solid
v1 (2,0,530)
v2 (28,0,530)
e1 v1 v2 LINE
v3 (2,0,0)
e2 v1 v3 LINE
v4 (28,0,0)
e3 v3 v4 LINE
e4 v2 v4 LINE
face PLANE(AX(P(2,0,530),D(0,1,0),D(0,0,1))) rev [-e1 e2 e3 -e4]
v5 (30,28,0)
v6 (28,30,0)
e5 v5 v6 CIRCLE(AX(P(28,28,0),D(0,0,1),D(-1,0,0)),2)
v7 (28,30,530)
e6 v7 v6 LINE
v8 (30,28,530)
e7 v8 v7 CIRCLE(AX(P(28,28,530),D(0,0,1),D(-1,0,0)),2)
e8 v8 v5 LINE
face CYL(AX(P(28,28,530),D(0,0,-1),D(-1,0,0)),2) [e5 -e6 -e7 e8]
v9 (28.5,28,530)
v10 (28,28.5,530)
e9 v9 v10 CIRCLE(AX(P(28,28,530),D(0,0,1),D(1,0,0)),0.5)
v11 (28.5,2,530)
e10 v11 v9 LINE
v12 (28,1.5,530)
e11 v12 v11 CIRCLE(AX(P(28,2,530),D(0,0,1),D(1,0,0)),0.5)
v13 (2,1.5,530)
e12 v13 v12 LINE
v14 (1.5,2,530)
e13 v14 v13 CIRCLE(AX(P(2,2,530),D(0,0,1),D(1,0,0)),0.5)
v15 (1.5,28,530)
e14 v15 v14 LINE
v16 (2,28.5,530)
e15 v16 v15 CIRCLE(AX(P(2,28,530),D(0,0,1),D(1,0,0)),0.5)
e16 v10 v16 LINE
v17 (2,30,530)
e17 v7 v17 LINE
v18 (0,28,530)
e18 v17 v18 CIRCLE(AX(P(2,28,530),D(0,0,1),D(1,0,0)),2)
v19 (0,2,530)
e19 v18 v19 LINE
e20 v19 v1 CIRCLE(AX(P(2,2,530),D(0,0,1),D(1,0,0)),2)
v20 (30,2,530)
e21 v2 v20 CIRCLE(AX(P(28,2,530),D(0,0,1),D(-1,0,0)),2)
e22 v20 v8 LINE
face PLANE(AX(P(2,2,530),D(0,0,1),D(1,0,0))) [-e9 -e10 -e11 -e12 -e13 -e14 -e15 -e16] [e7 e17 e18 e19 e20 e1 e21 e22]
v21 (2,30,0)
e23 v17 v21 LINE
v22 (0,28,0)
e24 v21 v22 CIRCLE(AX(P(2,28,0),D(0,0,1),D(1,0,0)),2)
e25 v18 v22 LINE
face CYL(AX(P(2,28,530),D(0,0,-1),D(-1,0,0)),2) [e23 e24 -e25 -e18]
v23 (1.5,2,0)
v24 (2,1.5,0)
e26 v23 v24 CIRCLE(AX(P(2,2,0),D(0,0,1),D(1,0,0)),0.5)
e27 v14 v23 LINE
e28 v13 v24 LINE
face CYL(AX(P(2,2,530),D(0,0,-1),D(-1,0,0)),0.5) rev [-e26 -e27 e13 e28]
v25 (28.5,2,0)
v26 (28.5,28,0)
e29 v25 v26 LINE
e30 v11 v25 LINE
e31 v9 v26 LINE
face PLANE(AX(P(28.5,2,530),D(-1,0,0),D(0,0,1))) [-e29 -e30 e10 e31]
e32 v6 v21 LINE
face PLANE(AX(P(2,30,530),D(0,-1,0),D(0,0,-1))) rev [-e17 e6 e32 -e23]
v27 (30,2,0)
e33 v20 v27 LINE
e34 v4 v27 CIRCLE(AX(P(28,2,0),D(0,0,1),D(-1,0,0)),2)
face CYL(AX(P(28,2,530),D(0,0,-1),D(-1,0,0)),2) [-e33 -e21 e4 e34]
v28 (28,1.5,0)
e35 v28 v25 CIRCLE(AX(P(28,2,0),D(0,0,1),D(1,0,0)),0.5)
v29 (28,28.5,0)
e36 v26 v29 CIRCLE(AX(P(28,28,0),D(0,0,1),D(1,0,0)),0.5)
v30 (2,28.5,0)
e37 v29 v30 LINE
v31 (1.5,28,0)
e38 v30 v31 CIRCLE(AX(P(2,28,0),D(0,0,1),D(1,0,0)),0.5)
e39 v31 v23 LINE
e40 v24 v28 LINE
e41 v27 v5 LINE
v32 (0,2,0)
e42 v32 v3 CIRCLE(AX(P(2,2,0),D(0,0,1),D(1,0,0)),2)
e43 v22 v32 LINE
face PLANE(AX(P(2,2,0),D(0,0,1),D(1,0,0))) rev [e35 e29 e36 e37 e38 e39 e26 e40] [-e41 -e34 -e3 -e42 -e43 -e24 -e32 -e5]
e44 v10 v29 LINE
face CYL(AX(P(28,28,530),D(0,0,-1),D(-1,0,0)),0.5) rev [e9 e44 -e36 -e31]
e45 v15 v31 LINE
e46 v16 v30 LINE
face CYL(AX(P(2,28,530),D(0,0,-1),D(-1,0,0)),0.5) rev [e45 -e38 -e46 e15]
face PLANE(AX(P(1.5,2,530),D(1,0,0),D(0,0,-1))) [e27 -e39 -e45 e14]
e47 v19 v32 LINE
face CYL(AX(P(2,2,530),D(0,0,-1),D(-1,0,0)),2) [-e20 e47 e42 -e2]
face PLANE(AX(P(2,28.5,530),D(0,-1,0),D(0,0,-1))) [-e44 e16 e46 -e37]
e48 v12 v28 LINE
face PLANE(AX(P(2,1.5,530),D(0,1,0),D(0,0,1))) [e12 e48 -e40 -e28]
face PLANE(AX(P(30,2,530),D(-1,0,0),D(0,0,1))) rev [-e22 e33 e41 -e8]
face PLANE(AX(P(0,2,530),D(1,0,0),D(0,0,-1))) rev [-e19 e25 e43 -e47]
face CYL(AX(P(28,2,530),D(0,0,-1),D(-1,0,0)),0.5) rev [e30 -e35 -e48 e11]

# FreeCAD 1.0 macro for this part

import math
import FreeCAD as App
import Part
import Sketcher

V = App.Vector
Q = App.Units.Quantity

doc = App.newDocument("Part")
body = doc.addObject("PartDesign::Body", "Body")

sketch1 = body.newObject("Sketcher::SketchObject", "Sketch")
sketch1.AttachmentSupport = (doc.getObject("XY_Plane"), [""])
sketch1.MapMode = "FlatFace"
sketch1.addGeometry([
    Part.LineSegment(V(0, 28, 0), V(0, 2, 0)),
    Part.ArcOfCircle(Part.Circle(V(2, 2, 0), V(0, 0, 1), 2), math.radians(-180), math.radians(-90)),
    Part.LineSegment(V(2, 0, 0), V(28, 0, 0)),
    Part.ArcOfCircle(Part.Circle(V(28, 2, 0), V(0, 0, 1), 2), math.radians(-90), math.radians(0)),
    Part.LineSegment(V(30, 2, 0), V(30, 28, 0)),
    Part.ArcOfCircle(Part.Circle(V(28, 28, 0), V(0, 0, 1), 2), math.radians(0), math.radians(90)),
    Part.LineSegment(V(28, 30, 0), V(2, 30, 0)),
    Part.ArcOfCircle(Part.Circle(V(2, 28, 0), V(0, 0, 1), 2), math.radians(90), math.radians(180)),
    Part.LineSegment(V(1.5, 2, 0), V(1.5, 28, 0)),
    Part.ArcOfCircle(Part.Circle(V(2, 28, 0), V(0, 0, 1), 0.5), math.radians(90), math.radians(180)),
    Part.LineSegment(V(2, 28.5, 0), V(28, 28.5, 0)),
    Part.ArcOfCircle(Part.Circle(V(28, 28, 0), V(0, 0, 1), 0.5), math.radians(0), math.radians(90)),
    Part.LineSegment(V(28.5, 28, 0), V(28.5, 2, 0)),
    Part.ArcOfCircle(Part.Circle(V(28, 2, 0), V(0, 0, 1), 0.5), math.radians(-90), math.radians(0)),
    Part.LineSegment(V(28, 1.5, 0), V(2, 1.5, 0)),
    Part.ArcOfCircle(Part.Circle(V(2, 2, 0), V(0, 0, 1), 0.5), math.radians(180), math.radians(270)),
], False)
sketch1.addConstraint([
    Sketcher.Constraint("Tangent", 0, 2, 1, 1),
    Sketcher.Constraint("Tangent", 1, 2, 2, 1),
    Sketcher.Constraint("Tangent", 2, 2, 3, 1),
    Sketcher.Constraint("Tangent", 3, 2, 4, 1),
    Sketcher.Constraint("Tangent", 4, 2, 5, 1),
    Sketcher.Constraint("Tangent", 5, 2, 6, 1),
    Sketcher.Constraint("Tangent", 6, 2, 7, 1),
    Sketcher.Constraint("Tangent", 7, 2, 0, 1),
    Sketcher.Constraint("Tangent", 8, 2, 9, 2),
    Sketcher.Constraint("Tangent", 9, 1, 10, 1),
    Sketcher.Constraint("Tangent", 10, 2, 11, 2),
    Sketcher.Constraint("Tangent", 11, 1, 12, 1),
    Sketcher.Constraint("Tangent", 12, 2, 13, 2),
    Sketcher.Constraint("Tangent", 13, 1, 14, 1),
    Sketcher.Constraint("Tangent", 14, 2, 15, 2),
    Sketcher.Constraint("Tangent", 15, 1, 8, 1),
    Sketcher.Constraint("Vertical", 0),
    Sketcher.Constraint("Horizontal", 2),
    Sketcher.Constraint("Vertical", 4),
    Sketcher.Constraint("Horizontal", 6),
    Sketcher.Constraint("Vertical", 8),
    Sketcher.Constraint("Horizontal", 10),
    Sketcher.Constraint("Vertical", 12),
    Sketcher.Constraint("Horizontal", 14),
    Sketcher.Constraint("Coincident", 9, 3, 7, 3),
    Sketcher.Constraint("Coincident", 11, 3, 5, 3),
    Sketcher.Constraint("Coincident", 13, 3, 3, 3),
    Sketcher.Constraint("Equal", 1, 3),
    Sketcher.Constraint("Equal", 3, 5),
    Sketcher.Constraint("Equal", 5, 7),
    Sketcher.Constraint("Equal", 13, 15),
    Sketcher.Constraint("PointOnObject", 0, 2, -2),
    Sketcher.Constraint("PointOnObject", 1, 2, -1),
    Sketcher.Constraint("Equal", 14, 0),
    Sketcher.Constraint("Radius", 1, Q("2 mm")),
    Sketcher.Constraint("Radius", 9, Q("0.5 mm")),
    Sketcher.Constraint("DistanceX", 2, 1, 2, 2, Q("26 mm")),
])
pad1 = body.newObject("PartDesign::Pad", "Pad")
pad1.Profile = sketch1
pad1.Length = 530

doc.recompute()
